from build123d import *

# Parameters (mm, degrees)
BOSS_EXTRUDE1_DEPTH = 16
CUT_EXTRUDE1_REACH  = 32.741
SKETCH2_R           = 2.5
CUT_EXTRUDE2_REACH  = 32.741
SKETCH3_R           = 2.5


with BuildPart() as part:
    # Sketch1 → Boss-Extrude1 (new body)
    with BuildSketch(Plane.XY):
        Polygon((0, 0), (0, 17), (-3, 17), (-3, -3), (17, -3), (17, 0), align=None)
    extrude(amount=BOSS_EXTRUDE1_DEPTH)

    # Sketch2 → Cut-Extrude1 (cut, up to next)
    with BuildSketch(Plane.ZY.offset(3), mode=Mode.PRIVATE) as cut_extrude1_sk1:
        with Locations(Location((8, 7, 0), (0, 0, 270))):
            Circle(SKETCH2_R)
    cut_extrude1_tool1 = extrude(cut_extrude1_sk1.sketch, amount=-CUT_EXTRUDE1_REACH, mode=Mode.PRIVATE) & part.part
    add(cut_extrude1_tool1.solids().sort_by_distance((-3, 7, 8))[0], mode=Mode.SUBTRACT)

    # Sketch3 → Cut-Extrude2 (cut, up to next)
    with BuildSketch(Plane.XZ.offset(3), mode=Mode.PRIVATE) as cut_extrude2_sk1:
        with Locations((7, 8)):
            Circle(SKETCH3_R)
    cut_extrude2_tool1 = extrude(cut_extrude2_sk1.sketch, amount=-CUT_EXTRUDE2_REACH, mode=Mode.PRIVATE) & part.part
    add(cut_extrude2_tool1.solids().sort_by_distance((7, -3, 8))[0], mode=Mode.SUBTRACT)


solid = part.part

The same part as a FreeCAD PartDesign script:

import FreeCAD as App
import Part
import Sketcher
Q = App.Units.Quantity


def add_polygon(sketch, points):
    """Adds a closed chain of lines whose ends are joined by coincident constraints."""
    first, n = sketch.GeometryCount, len(points)
    for a, b in zip(points, points[1:] + points[:1]):
        sketch.addGeometry(Part.LineSegment(App.Vector(*a, 0), App.Vector(*b, 0)), False)
    for i in range(n):
        sketch.addConstraint(Sketcher.Constraint("Coincident", first + i, 2, first + (i + 1) % n, 1))

doc = App.newDocument("Part")
body = doc.addObject("PartDesign::Body", "Body")

# Sketch on XY plane
sketch1 = body.newObject("Sketcher::SketchObject", "Sketch")
sketch1.AttachmentSupport = (doc.getObject("XY_Plane"), [""])
sketch1.MapMode = "FlatFace"
add_polygon(sketch1, [(0, 0), (0, 17), (-3, 17), (-3, -3), (17, -3), (17, 0)])  # lines 0-5
sketch1.addConstraint([
    Sketcher.Constraint("Vertical", 0),
    Sketcher.Constraint("Horizontal", 1),
    Sketcher.Constraint("Vertical", 2),
    Sketcher.Constraint("Horizontal", 3),
    Sketcher.Constraint("Vertical", 4),
    Sketcher.Constraint("Horizontal", 5),
    Sketcher.Constraint("Coincident", 5, 2, -1, 1),
    Sketcher.Constraint("Equal", 5, 0),
    Sketcher.Constraint("Equal", 3, 2),
    Sketcher.Constraint("DistanceX", 1, 2, 1, 1, Q("3 mm")),
    Sketcher.Constraint("DistanceX", 3, 1, 3, 2, Q("20 mm")),
])
pad1 = body.newObject("PartDesign::Pad", "Pad")
pad1.Profile = sketch1
pad1.Length = 16

# Sketch on YZ plane
sketch2 = body.newObject("Sketcher::SketchObject", "Sketch001")
sketch2.AttachmentSupport = (doc.getObject("YZ_Plane"), [""])
sketch2.MapMode = "FlatFace"
sketch2.AttachmentOffset = App.Placement(App.Vector(0, 0, -3), App.Rotation())
sketch2.addGeometry(Part.Circle(App.Vector(7, 8, 0), App.Vector(0, 0, 1), 2.5), False)
sketch2.addConstraint([
    Sketcher.Constraint("Diameter", 0, Q("5 mm")),
    Sketcher.Constraint("DistanceX", -1, 1, 0, 3, Q("7 mm")),
    Sketcher.Constraint("DistanceY", -1, 1, 0, 3, Q("8 mm")),
])
pocket1 = body.newObject("PartDesign::Pocket", "Pocket")
pocket1.Profile = sketch2
pocket1.Type = "UpToFirst"
pocket1.Reversed = True

# Sketch on XZ plane
sketch3 = body.newObject("Sketcher::SketchObject", "Sketch002")
sketch3.AttachmentSupport = (doc.getObject("XZ_Plane"), [""])
sketch3.MapMode = "FlatFace"
sketch3.AttachmentOffset = App.Placement(App.Vector(0, 0, 3), App.Rotation())
sketch3.addGeometry(Part.Circle(App.Vector(7, 8, 0), App.Vector(0, 0, 1), 2.5), False)
sketch3.addConstraint([
    Sketcher.Constraint("Diameter", 0, Q("5 mm")),
    Sketcher.Constraint("DistanceX", -1, 1, 0, 3, Q("7 mm")),
    Sketcher.Constraint("DistanceY", -1, 1, 0, 3, Q("8 mm")),
])
pocket2 = body.newObject("PartDesign::Pocket", "Pocket001")
pocket2.Profile = sketch3
pocket2.Type = "UpToFirst"

doc.recompute()
